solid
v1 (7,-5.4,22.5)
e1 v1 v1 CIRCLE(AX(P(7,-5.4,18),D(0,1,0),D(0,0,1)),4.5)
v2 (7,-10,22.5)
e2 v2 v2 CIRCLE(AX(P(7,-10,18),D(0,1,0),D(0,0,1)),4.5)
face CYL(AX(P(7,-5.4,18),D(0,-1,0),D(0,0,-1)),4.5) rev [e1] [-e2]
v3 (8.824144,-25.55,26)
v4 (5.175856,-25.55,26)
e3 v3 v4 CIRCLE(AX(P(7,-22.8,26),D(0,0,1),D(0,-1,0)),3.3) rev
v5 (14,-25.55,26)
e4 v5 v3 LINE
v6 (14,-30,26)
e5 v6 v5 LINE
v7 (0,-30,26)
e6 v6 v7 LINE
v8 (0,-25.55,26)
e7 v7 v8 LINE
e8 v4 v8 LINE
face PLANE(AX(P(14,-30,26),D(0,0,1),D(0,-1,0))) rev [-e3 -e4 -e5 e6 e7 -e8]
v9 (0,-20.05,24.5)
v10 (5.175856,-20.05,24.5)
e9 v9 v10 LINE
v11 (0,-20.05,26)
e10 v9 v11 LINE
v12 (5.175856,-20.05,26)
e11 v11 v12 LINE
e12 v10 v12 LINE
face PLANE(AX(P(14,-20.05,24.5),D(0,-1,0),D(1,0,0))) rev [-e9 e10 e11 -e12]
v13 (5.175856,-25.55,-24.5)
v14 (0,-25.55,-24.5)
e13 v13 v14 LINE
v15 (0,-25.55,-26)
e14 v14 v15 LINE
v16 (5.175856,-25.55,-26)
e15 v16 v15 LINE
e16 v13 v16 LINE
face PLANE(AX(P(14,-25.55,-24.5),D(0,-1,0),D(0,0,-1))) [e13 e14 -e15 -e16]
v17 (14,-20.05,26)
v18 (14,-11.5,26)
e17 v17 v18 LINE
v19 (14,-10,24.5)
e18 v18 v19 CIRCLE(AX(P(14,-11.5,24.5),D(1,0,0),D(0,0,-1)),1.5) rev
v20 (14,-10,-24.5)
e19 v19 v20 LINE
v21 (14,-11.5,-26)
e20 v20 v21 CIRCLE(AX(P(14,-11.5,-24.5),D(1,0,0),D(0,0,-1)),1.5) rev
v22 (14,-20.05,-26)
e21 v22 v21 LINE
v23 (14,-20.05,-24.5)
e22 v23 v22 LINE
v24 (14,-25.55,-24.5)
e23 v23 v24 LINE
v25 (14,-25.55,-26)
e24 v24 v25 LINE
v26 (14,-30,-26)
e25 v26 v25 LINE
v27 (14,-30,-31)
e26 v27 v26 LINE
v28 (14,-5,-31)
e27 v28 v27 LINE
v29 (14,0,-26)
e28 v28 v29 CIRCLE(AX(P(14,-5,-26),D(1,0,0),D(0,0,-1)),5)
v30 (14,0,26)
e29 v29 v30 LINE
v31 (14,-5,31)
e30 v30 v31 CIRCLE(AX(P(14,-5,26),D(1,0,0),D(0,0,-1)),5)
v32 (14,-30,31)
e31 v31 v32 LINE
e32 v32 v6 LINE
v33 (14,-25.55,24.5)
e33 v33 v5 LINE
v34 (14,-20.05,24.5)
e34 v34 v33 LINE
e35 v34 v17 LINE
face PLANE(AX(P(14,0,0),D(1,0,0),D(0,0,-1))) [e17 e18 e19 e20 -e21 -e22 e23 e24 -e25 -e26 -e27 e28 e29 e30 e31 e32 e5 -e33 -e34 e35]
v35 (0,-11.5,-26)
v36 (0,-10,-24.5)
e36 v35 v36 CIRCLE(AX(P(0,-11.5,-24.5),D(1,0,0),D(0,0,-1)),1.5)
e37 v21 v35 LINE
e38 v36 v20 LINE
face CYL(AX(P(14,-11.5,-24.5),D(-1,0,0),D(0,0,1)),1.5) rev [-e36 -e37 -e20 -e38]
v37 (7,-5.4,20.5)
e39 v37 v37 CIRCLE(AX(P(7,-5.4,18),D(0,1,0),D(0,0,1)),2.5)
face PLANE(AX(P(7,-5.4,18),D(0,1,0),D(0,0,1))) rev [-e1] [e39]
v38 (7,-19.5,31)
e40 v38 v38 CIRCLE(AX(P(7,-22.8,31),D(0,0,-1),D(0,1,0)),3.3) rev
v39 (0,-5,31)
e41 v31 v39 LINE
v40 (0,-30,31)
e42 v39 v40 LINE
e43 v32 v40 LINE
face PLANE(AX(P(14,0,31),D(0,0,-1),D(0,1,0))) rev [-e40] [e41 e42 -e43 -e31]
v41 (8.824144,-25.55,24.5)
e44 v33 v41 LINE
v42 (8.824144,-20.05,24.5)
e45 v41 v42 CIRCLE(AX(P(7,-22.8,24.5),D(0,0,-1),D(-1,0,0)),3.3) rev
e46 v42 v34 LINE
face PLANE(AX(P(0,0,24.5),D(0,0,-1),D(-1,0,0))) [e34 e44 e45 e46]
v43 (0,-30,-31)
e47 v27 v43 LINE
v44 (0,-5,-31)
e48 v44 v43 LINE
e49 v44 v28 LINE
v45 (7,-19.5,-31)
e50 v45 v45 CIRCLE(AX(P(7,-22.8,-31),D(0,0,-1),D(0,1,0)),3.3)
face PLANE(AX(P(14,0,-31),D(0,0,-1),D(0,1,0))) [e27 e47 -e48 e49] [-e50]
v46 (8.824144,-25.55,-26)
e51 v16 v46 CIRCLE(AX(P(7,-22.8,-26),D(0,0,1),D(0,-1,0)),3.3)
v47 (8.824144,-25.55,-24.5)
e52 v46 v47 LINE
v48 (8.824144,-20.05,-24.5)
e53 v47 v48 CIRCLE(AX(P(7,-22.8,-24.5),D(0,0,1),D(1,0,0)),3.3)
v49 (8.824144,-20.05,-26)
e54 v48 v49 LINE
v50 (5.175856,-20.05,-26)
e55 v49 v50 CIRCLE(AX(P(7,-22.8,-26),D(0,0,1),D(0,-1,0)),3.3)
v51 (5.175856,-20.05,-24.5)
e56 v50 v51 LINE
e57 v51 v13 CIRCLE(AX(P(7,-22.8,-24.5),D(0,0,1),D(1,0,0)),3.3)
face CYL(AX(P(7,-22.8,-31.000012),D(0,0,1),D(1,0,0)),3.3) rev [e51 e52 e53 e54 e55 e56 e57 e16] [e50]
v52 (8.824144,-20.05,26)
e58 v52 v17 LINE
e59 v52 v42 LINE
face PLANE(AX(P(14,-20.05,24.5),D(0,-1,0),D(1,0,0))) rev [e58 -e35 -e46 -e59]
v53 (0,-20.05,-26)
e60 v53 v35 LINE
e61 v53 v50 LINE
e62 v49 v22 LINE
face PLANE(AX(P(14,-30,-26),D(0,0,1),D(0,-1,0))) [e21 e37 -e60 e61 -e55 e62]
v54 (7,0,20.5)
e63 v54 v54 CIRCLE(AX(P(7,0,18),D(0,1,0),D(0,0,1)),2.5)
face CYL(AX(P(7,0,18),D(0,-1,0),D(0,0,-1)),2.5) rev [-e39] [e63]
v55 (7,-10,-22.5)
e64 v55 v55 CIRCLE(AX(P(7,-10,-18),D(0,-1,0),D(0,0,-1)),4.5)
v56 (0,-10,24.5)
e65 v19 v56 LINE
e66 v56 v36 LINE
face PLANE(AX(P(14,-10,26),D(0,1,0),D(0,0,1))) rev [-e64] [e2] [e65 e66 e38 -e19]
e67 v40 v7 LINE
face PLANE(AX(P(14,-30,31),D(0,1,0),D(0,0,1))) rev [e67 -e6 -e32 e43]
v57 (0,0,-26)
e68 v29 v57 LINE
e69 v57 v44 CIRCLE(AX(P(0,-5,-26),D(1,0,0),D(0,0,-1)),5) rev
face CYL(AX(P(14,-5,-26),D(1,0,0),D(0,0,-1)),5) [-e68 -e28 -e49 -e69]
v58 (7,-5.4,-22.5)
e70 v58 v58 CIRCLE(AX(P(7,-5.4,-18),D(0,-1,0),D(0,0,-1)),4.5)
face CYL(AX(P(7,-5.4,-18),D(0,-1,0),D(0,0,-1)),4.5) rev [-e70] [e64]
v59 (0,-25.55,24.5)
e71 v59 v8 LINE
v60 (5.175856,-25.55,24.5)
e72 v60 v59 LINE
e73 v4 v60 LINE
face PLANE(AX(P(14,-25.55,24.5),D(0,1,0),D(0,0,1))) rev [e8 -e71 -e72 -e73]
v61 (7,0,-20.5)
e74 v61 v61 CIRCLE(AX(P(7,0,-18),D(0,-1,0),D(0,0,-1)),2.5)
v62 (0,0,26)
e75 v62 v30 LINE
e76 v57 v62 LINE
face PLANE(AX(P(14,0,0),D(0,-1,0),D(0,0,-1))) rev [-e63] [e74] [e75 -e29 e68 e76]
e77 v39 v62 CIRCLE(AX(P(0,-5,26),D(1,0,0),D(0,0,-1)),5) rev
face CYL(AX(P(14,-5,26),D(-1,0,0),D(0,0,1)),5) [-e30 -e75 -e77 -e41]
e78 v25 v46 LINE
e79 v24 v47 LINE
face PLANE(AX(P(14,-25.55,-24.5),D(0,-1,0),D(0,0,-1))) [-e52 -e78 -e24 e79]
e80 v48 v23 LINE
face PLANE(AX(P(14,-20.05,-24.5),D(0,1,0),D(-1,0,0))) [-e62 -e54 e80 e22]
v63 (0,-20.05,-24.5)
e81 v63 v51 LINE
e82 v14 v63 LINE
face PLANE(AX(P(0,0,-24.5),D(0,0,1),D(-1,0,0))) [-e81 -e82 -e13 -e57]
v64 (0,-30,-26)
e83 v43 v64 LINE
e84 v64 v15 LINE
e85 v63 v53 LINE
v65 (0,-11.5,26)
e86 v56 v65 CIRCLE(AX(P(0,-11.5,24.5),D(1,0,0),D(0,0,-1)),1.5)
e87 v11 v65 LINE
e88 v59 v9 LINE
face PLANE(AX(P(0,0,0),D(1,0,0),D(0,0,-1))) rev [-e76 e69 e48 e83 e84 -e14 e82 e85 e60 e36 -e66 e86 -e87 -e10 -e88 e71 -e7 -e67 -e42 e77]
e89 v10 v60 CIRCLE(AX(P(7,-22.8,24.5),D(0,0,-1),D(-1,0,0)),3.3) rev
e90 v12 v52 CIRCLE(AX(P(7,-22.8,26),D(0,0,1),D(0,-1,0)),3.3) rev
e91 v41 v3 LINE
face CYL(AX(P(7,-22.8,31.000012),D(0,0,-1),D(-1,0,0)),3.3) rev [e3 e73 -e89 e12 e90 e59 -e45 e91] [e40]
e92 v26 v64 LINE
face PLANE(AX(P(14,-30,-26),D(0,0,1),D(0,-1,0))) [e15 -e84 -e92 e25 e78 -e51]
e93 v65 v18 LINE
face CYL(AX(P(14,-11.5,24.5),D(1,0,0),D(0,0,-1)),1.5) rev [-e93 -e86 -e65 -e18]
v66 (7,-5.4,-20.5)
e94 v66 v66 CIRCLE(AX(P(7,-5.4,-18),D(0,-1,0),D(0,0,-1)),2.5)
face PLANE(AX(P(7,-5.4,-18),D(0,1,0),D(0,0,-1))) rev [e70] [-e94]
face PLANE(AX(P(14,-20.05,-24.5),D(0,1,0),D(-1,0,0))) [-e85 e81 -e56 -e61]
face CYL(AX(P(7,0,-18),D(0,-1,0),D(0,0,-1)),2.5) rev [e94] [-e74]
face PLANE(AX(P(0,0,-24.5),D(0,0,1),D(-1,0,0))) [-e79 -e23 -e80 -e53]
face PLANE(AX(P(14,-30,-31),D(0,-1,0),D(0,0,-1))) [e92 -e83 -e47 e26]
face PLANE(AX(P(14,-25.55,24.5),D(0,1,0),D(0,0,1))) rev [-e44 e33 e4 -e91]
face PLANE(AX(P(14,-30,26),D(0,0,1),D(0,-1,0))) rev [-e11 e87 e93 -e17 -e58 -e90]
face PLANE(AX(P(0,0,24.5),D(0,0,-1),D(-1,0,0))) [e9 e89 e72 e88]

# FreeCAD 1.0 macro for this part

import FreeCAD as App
import Part
import Sketcher

V = App.Vector


def edges_at(feature, points):
    """Names of the edges that pass closest to the given points."""
    edges = feature.Shape.Edges
    near = lambda p: min(range(len(edges)), key=lambda i: edges[i].distToShape(Part.Vertex(*p))[0])
    return sorted({f"Edge{near(p) + 1}" for p in points})

doc = App.newDocument("Part")
body = doc.addObject("PartDesign::Body", "Body")

sketch1 = body.newObject("Sketcher::SketchObject", "Sketch")
sketch1.AttachmentSupport = (doc.getObject("YZ_Plane"), [""])
sketch1.MapMode = "FlatFace"
sketch1.addGeometry(Part.LineSegment(V(0, 0, 0), V(0, 31, 0)), False)
sketch1.addGeometry(Part.LineSegment(V(0, 31, 0), V(-30, 31, 0)), False)
sketch1.addGeometry(Part.LineSegment(V(-30, 31, 0), V(-30, 26, 0)), False)
sketch1.addGeometry(Part.LineSegment(V(-30, 26, 0), V(-10, 26, 0)), False)
sketch1.addGeometry(Part.LineSegment(V(-10, 26, 0), V(-10, 0, 0)), False)
sketch1.addGeometry(Part.LineSegment(V(-10, 0, 0), V(0, 0, 0)), False)
sketch1.addConstraint(Sketcher.Constraint("Coincident", 0, 2, 1, 1))
sketch1.addConstraint(Sketcher.Constraint("Coincident", 1, 2, 2, 1))
sketch1.addConstraint(Sketcher.Constraint("Coincident", 2, 2, 3, 1))
sketch1.addConstraint(Sketcher.Constraint("Coincident", 3, 2, 4, 1))
sketch1.addConstraint(Sketcher.Constraint("Coincident", 4, 2, 5, 1))
sketch1.addConstraint(Sketcher.Constraint("Coincident", 5, 2, 0, 1))
sketch1.addConstraint(Sketcher.Constraint("Vertical", 0))
sketch1.addConstraint(Sketcher.Constraint("Horizontal", 1))
sketch1.addConstraint(Sketcher.Constraint("Vertical", 2))
sketch1.addConstraint(Sketcher.Constraint("Horizontal", 3))
sketch1.addConstraint(Sketcher.Constraint("Vertical", 4))
sketch1.addConstraint(Sketcher.Constraint("Horizontal", 5))
sketch1.addConstraint(Sketcher.Constraint("Coincident", 5, 2, -1, 1))
sketch1.addConstraint(Sketcher.Constraint("DistanceX", 1, 2, 1, 1, 30.0))
sketch1.addConstraint(Sketcher.Constraint("DistanceX", 3, 1, 3, 2, 20.0))
sketch1.addConstraint(Sketcher.Constraint("DistanceY", 0, 1, 0, 2, 31.0))
sketch1.addConstraint(Sketcher.Constraint("DistanceY", 2, 2, 2, 1, 5.0))
pad1 = body.newObject("PartDesign::Pad", "Pad")
pad1.Profile = sketch1
pad1.Length = 14

sketch2 = body.newObject("Sketcher::SketchObject", "Sketch001")
sketch2.AttachmentSupport = (doc.getObject("XY_Plane"), [""])
sketch2.MapMode = "FlatFace"
sketch2.AttachmentOffset = App.Placement(V(0, 0, 26), App.Rotation())
sketch2.addGeometry(Part.LineSegment(V(14, -20.05, 0), V(14, -25.55, 0)), False)
sketch2.addGeometry(Part.LineSegment(V(14, -25.55, 0), V(0, -25.55, 0)), False)
sketch2.addGeometry(Part.LineSegment(V(0, -25.55, 0), V(0, -20.05, 0)), False)
sketch2.addGeometry(Part.LineSegment(V(0, -20.05, 0), V(14, -20.05, 0)), False)
sketch2.addConstraint(Sketcher.Constraint("Coincident", 0, 2, 1, 1))
sketch2.addConstraint(Sketcher.Constraint("Coincident", 1, 2, 2, 1))
sketch2.addConstraint(Sketcher.Constraint("Coincident", 2, 2, 3, 1))
sketch2.addConstraint(Sketcher.Constraint("Coincident", 3, 2, 0, 1))
sketch2.addConstraint(Sketcher.Constraint("Vertical", 0))
sketch2.addConstraint(Sketcher.Constraint("Horizontal", 1))
sketch2.addConstraint(Sketcher.Constraint("Vertical", 2))
sketch2.addConstraint(Sketcher.Constraint("Horizontal", 3))
sketch2.addConstraint(Sketcher.Constraint("PointOnObject", 1, 2, -2))
sketch2.addConstraint(Sketcher.Constraint("DistanceX", 1, 2, 1, 1, 14.0))
sketch2.addConstraint(Sketcher.Constraint("DistanceY", 0, 2, 0, 1, 5.5))
sketch2.addConstraint(Sketcher.Constraint("DistanceY", 0, 2, -1, 1, 25.55))
pad2 = body.newObject("PartDesign::Pad", "Pad001")
pad2.Profile = sketch2
pad2.Length = 1.5
pad2.Reversed = True

sketch3 = body.newObject("Sketcher::SketchObject", "Sketch002")
sketch3.AttachmentSupport = (doc.getObject("XY_Plane"), [""])
sketch3.MapMode = "FlatFace"
sketch3.AttachmentOffset = App.Placement(V(0, 0, 24.5), App.Rotation())
sketch3.addGeometry(Part.Circle(V(7, -22.8, 0), V(0, 0, 1), 3.3), False)
sketch3.addConstraint(Sketcher.Constraint("Diameter", 0, 6.6))
sketch3.addConstraint(Sketcher.Constraint("DistanceX", -1, 1, 0, 3, 7.0))
sketch3.addConstraint(Sketcher.Constraint("DistanceY", 0, 3, -1, 1, 22.8))
pocket1 = body.newObject("PartDesign::Pocket", "Pocket")
pocket1.Profile = sketch3
pocket1.Length = 6.5
pocket1.Reversed = True
doc.recompute()

fillet = body.newObject("PartDesign::Fillet", "Fillet")
fillet.Base = (pocket1, edges_at(pocket1, [(7, 0, 31)]))
fillet.Radius = 5
doc.recompute()

fillet2 = body.newObject("PartDesign::Fillet", "Fillet001")
fillet2.Base = (fillet, edges_at(fillet, [(7, -10, 26)]))
fillet2.Radius = 1.5

sketch4 = body.newObject("Sketcher::SketchObject", "Sketch003")
sketch4.AttachmentSupport = (doc.getObject("XZ_Plane"), [""])
sketch4.MapMode = "FlatFace"
sketch4.AttachmentOffset = App.Placement(V(0, 0, 10), App.Rotation())
sketch4.addGeometry(Part.Circle(V(7, 18, 0), V(0, 0, 1), 2.5), False)
sketch4.addConstraint(Sketcher.Constraint("Diameter", 0, 5.0))
sketch4.addConstraint(Sketcher.Constraint("DistanceX", -1, 1, 0, 3, 7.0))
sketch4.addConstraint(Sketcher.Constraint("DistanceY", -1, 1, 0, 3, 18.0))
pocket2 = body.newObject("PartDesign::Pocket", "Pocket001")
pocket2.Profile = sketch4
pocket2.Type = "ThroughAll"

sketch5 = body.newObject("Sketcher::SketchObject", "Sketch004")
sketch5.AttachmentSupport = (doc.getObject("XZ_Plane"), [""])
sketch5.MapMode = "FlatFace"
sketch5.AttachmentOffset = App.Placement(V(0, 0, 10), App.Rotation())
sketch5.addGeometry(Part.Circle(V(7, 18, 0), V(0, 0, 1), 4.5), False)
sketch5.addGeometry(Part.Circle(V(7, 18, 0), V(0, 0, 1), 2.5), False)
sketch5.addConstraint(Sketcher.Constraint("Coincident", 1, 3, 0, 3))
sketch5.addConstraint(Sketcher.Constraint("Diameter", 0, 9.0))
sketch5.addConstraint(Sketcher.Constraint("Diameter", 1, 5.0))
sketch5.addConstraint(Sketcher.Constraint("DistanceX", -1, 1, 0, 3, 7.0))
sketch5.addConstraint(Sketcher.Constraint("DistanceY", -1, 1, 0, 3, 18.0))
pocket3 = body.newObject("PartDesign::Pocket", "Pocket002")
pocket3.Profile = sketch5
pocket3.Length = 4.6
doc.recompute()

mirrored = body.newObject("PartDesign::Mirrored", "Mirrored")
mirrored.Originals = [pad1, pad2, pocket1, pocket2, pocket3]
mirrored.MirrorPlane = (doc.getObject("XY_Plane"), [""])
body.Tip = mirrored
doc.recompute()

fillet3 = body.newObject("PartDesign::Fillet", "Fillet002")
fillet3.Base = (mirrored, edges_at(mirrored, [(7, 0, -31)]))
fillet3.Radius = 5
doc.recompute()

fillet4 = body.newObject("PartDesign::Fillet", "Fillet003")
fillet4.Base = (fillet3, edges_at(fillet3, [(7, -10, -26)]))
fillet4.Radius = 1.5

doc.recompute()
